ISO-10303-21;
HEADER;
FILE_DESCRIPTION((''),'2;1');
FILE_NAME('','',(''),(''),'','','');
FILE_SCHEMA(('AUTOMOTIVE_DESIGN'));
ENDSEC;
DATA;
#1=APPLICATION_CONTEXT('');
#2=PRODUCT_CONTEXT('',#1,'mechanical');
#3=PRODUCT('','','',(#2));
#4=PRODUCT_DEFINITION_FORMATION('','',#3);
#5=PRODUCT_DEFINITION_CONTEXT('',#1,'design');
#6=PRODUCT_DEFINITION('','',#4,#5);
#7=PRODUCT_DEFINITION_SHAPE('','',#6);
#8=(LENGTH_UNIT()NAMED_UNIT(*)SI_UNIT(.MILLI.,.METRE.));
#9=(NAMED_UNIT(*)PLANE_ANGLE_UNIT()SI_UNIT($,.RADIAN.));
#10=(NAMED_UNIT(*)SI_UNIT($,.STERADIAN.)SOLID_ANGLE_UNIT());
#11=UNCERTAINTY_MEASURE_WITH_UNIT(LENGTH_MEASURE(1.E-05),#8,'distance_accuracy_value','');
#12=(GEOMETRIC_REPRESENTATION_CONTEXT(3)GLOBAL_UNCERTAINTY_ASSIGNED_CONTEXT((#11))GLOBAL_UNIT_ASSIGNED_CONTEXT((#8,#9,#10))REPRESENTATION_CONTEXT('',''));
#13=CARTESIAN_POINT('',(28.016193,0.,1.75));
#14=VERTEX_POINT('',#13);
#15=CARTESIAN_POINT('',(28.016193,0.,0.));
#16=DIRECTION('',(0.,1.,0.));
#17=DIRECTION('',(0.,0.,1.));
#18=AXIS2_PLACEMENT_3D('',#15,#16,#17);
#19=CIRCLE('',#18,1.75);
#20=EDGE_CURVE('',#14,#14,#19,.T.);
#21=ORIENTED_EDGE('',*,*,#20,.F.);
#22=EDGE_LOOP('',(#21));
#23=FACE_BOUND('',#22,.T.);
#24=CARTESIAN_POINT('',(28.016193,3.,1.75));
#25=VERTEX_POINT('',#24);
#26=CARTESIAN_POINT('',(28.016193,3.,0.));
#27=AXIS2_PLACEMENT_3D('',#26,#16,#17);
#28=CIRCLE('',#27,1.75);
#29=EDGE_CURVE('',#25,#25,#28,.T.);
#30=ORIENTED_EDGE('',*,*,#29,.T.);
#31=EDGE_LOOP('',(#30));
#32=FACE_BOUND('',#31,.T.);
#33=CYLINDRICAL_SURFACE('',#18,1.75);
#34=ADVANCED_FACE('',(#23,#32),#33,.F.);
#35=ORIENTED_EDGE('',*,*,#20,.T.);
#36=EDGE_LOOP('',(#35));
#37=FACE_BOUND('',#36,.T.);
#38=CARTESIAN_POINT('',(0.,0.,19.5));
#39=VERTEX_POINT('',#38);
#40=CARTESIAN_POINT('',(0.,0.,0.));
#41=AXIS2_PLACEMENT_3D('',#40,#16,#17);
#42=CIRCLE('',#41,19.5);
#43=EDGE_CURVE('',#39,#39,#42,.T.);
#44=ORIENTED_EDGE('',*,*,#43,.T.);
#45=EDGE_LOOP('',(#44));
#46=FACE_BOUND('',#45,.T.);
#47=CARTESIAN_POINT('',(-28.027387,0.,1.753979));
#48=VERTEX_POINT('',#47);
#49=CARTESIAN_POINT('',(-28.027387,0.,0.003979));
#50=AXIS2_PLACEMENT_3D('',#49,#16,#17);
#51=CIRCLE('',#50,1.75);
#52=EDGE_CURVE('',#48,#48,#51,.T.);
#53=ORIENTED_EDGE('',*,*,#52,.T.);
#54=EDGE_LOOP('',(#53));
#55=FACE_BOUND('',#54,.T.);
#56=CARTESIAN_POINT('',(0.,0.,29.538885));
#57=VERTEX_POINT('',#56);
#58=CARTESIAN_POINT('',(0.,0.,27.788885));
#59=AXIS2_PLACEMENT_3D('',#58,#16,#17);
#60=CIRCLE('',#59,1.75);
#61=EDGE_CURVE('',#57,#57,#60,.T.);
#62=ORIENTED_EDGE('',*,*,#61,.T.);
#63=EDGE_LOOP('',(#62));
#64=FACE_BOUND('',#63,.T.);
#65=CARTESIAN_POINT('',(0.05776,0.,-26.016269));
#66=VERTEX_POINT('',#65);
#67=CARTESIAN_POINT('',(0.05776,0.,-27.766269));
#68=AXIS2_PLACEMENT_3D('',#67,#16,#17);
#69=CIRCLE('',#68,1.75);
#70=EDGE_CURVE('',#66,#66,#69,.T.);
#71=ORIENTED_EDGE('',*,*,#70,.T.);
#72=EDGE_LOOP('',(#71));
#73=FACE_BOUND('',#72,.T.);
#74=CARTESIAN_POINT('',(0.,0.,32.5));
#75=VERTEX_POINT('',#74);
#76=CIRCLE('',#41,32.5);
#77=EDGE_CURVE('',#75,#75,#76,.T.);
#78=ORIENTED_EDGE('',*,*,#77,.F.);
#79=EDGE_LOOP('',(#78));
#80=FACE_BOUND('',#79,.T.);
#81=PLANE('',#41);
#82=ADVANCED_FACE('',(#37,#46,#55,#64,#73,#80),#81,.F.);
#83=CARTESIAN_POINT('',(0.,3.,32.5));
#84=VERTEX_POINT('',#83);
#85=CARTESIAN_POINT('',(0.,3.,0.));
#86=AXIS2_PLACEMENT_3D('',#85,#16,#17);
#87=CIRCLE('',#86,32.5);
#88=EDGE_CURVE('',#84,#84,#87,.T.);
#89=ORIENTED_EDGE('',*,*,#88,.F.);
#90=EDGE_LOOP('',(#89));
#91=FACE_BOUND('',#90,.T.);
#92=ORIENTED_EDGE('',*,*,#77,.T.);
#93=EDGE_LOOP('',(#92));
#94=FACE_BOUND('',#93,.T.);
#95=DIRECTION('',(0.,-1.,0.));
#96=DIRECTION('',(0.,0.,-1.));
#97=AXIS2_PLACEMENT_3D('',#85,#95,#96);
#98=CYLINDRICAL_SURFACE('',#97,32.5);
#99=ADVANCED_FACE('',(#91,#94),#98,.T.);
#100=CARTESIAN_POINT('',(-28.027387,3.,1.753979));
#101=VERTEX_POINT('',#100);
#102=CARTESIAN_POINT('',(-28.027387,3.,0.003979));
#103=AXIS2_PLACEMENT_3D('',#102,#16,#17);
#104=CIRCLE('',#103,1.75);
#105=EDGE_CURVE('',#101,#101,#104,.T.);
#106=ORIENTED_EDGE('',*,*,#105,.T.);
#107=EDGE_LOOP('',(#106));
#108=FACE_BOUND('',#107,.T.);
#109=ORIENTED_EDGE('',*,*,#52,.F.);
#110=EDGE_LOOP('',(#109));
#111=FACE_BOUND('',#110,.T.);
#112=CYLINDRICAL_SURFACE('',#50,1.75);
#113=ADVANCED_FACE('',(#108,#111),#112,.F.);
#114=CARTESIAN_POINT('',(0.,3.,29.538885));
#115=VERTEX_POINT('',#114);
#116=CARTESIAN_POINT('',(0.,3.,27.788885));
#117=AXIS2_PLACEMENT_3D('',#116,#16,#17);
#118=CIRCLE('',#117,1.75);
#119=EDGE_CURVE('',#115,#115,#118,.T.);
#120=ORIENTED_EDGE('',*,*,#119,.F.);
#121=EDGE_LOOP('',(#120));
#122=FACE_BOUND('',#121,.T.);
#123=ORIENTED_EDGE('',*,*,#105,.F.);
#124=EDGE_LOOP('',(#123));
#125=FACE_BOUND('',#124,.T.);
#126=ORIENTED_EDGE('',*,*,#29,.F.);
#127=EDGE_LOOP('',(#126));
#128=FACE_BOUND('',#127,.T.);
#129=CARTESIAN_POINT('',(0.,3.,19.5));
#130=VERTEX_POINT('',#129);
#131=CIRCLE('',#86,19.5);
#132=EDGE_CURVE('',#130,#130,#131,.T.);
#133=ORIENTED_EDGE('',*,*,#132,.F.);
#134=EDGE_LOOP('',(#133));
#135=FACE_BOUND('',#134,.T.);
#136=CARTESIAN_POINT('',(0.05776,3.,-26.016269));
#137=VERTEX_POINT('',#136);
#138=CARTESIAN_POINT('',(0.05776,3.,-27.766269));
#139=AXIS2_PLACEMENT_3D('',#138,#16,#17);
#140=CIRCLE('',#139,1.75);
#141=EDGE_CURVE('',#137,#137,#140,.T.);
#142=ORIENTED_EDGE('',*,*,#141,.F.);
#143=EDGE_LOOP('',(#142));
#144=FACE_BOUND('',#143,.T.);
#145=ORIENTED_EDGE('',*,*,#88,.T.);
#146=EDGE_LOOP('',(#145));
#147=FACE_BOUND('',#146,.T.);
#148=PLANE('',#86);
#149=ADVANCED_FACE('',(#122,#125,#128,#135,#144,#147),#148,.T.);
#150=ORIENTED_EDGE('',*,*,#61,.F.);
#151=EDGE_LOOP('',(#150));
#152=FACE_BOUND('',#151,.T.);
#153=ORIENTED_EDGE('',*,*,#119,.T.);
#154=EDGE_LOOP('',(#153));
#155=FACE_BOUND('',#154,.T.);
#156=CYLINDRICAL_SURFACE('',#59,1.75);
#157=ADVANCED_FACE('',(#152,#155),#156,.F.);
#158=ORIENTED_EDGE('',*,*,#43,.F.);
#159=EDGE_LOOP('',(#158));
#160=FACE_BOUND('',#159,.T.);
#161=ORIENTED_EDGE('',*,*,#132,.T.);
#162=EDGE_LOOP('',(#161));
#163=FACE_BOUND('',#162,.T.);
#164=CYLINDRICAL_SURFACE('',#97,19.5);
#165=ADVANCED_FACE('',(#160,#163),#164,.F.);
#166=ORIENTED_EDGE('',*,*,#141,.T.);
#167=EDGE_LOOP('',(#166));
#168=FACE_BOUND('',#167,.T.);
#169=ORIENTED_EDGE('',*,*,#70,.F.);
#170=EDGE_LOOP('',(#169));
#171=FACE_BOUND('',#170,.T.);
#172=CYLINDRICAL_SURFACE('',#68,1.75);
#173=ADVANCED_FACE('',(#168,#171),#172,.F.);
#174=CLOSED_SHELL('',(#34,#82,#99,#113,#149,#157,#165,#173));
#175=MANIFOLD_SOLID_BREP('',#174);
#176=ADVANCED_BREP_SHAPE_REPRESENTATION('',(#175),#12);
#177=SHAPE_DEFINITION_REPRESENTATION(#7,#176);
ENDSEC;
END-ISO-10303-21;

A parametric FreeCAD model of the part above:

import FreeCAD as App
import Part
import Sketcher

V = App.Vector

doc = App.newDocument("Part")
body = doc.addObject("PartDesign::Body", "Body")

sketch1 = body.newObject("Sketcher::SketchObject", "Sketch")
sketch1.AttachmentSupport = (doc.getObject("XZ_Plane"), [""])
sketch1.MapMode = "FlatFace"
sketch1.addGeometry([
    Part.Circle(V(0, 0, 0), V(0, 0, 1), 32),
    Part.Circle(V(0, 0, 0), V(0, 0, 1), 20),
], False)
sketch1.addConstraint([
    Sketcher.Constraint("Coincident", 0, 3, -1, 1),
    Sketcher.Constraint("Coincident", 1, 3, -1, 1),
    Sketcher.Constraint("Diameter", 0, 65.0),
    Sketcher.Constraint("Diameter", 1, 39.0),
])
pad1 = body.newObject("PartDesign::Pad", "Pad")
pad1.Profile = sketch1
pad1.Length = 3
pad1.Reversed = True

sketch2 = body.newObject("Sketcher::SketchObject", "Sketch001")
sketch2.AttachmentSupport = (doc.getObject("XZ_Plane"), [""])
sketch2.MapMode = "FlatFace"
sketch2.AttachmentOffset = App.Placement(V(0, 0, -3), App.Rotation())
sketch2.addGeometry(Part.Circle(V(0, 27.8, 0), V(0, 0, 1), 1.8), False)
sketch2.addConstraint([
    Sketcher.Constraint("PointOnObject", 0, 3, -2),
    Sketcher.Constraint("Diameter", 0, 3.5),
    Sketcher.Constraint("DistanceY", -1, 1, 0, 3, 27.788885),
])
pocket1 = body.newObject("PartDesign::Pocket", "Pocket")
pocket1.Profile = sketch2
pocket1.Type = "ThroughAll"
pocket1.Midplane = True

sketch3 = body.newObject("Sketcher::SketchObject", "Sketch002")
sketch3.AttachmentSupport = (doc.getObject("XZ_Plane"), [""])
sketch3.MapMode = "FlatFace"
sketch3.AttachmentOffset = App.Placement(V(0, 0, -3), App.Rotation())
sketch3.addGeometry(Part.Circle(V(0.1, -27.8, 0), V(0, 0, 1), 1.8), False)
sketch3.addConstraint([
    Sketcher.Constraint("Diameter", 0, 3.5),
    Sketcher.Constraint("DistanceX", -1, 1, 0, 3, 0.05776),
    Sketcher.Constraint("DistanceY", 0, 3, -1, 1, 27.766269),
])
pocket2 = body.newObject("PartDesign::Pocket", "Pocket001")
pocket2.Profile = sketch3
pocket2.Type = "ThroughAll"
pocket2.Midplane = True

sketch4 = body.newObject("Sketcher::SketchObject", "Sketch003")
sketch4.AttachmentSupport = (doc.getObject("XZ_Plane"), [""])
sketch4.MapMode = "FlatFace"
sketch4.AttachmentOffset = App.Placement(V(0, 0, -3), App.Rotation())
sketch4.addGeometry([
    Part.Circle(V(-28, 0, 0), V(0, 0, 1), 1.8),
    Part.Circle(V(28, 0, 0), V(0, 0, 1), 1.8),
], False)
sketch4.addConstraint([
    Sketcher.Constraint("Equal", 0, 1),
    Sketcher.Constraint("PointOnObject", 1, 3, -1),
    Sketcher.Constraint("Diameter", 0, 3.5),
    Sketcher.Constraint("DistanceY", -1, 1, 0, 3, 0.003979),
    Sketcher.Constraint("DistanceX", 0, 3, 1, 3, 56.04358),
    Sketcher.Constraint("DistanceX", 0, 3, -1, 1, 28.027387),
])
pocket3 = body.newObject("PartDesign::Pocket", "Pocket002")
pocket3.Profile = sketch4
pocket3.Type = "ThroughAll"
pocket3.Midplane = True

doc.recompute()
